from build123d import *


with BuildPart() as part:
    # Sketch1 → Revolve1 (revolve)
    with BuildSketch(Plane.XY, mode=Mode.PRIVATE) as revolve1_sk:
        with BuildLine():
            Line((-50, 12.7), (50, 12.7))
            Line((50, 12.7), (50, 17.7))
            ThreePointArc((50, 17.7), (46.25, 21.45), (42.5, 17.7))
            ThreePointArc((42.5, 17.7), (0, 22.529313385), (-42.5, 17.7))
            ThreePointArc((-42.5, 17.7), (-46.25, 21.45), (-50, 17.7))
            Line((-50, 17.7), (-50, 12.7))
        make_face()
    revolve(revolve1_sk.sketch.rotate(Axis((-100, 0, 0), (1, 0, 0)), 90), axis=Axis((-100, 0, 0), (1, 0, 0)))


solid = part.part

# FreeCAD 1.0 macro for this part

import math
import FreeCAD as App
import Part
import Sketcher
Q = App.Units.Quantity

doc = App.newDocument("Part")
params = doc.addObject("Spreadsheet::Sheet", "Params")
for row, (alias, value) in enumerate([
    ("sketch1_width", "100 mm"),
    ("sketch1_height", "5 mm"),
    ("sketch1_radius", "3.75 mm"),
    ("revolution_angle", "360 deg"),
], start=1):
    params.set(f"A{row}", alias)
    params.set(f"B{row}", "=" + value)
    params.setAlias(f"B{row}", alias)

body = doc.addObject("PartDesign::Body", "Body")

# Sketch on XY plane
sketch1 = doc.addObject("Sketcher::SketchObject", "Sketch")
body.addObject(sketch1)
sketch1.AttachmentSupport = (doc.XY_Plane, [""])
sketch1.MapMode = "FlatFace"
sketch1.addGeometry(Part.LineSegment(App.Vector(-50, 12.7, 0), App.Vector(50, 12.7, 0)), False)
sketch1.addGeometry(Part.LineSegment(App.Vector(50, 12.7, 0), App.Vector(50, 17.7, 0)), False)
sketch1.addGeometry(Part.ArcOfCircle(Part.Circle(App.Vector(46.2, 17.7, 0), App.Vector(0, 0, 1), 3.8), math.radians(0), math.radians(180)), False)
sketch1.addGeometry(Part.ArcOfCircle(Part.Circle(App.Vector(0, -166.9, 0), App.Vector(0, 0, 1), 189.4), math.radians(77), math.radians(103)), False)
sketch1.addGeometry(Part.ArcOfCircle(Part.Circle(App.Vector(-46.2, 17.7, 0), App.Vector(0, 0, 1), 3.8), math.radians(0), math.radians(180)), False)
sketch1.addGeometry(Part.LineSegment(App.Vector(-50, 17.7, 0), App.Vector(-50, 12.7, 0)), False)
sketch1.addConstraint(Sketcher.Constraint("Coincident", 0, 2, 1, 1))
sketch1.addConstraint(Sketcher.Constraint("Tangent", 1, 2, 2, 1))
sketch1.addConstraint(Sketcher.Constraint("Coincident", 2, 2, 3, 1))
sketch1.addConstraint(Sketcher.Constraint("Coincident", 3, 2, 4, 1))
sketch1.addConstraint(Sketcher.Constraint("Tangent", 4, 2, 5, 1))
sketch1.addConstraint(Sketcher.Constraint("Coincident", 5, 2, 0, 1))
sketch1.addConstraint(Sketcher.Constraint("Horizontal", 0))
sketch1.addConstraint(Sketcher.Constraint("Vertical", 1))
sketch1.addConstraint(Sketcher.Constraint("Vertical", 5))
sketch1.addConstraint(Sketcher.Constraint("Equal", 2, 4))
sketch1.addConstraint(Sketcher.Constraint("Symmetric", 2, 3, 4, 3, -2))
sketch1.addConstraint(Sketcher.Constraint("PointOnObject", 3, 3, -2))
sketch1.addConstraint(Sketcher.Constraint("Horizontal", 1, 2, 2, 2))
sketch1.addConstraint(Sketcher.Constraint("DistanceX", 0, 1, 0, 2, Q("100 mm")))
sketch1.addConstraint(Sketcher.Constraint("DistanceY", 1, 1, 1, 2, Q("5 mm")))
sketch1.addConstraint(Sketcher.Constraint("Radius", 2, Q("3.75 mm")))
sketch1.addConstraint(Sketcher.Constraint("DistanceY", -1, 1, 2, 3, Q("17.7 mm")))
sketch1.addConstraint(Sketcher.Constraint("Radius", 3, Q("189.423643 mm")))
sketch1.setExpression("Constraints[13]", "Params.sketch1_width")
sketch1.setExpression("Constraints[14]", "Params.sketch1_height")
sketch1.setExpression("Constraints[15]", "Params.sketch1_radius")
revolution = doc.addObject("PartDesign::Revolution", "Revolution")
body.addObject(revolution)
revolution.Profile = sketch1
revolution.ReferenceAxis = (sketch1, ["H_Axis"])
revolution.setExpression("Angle", "Params.revolution_angle")

doc.recompute()
